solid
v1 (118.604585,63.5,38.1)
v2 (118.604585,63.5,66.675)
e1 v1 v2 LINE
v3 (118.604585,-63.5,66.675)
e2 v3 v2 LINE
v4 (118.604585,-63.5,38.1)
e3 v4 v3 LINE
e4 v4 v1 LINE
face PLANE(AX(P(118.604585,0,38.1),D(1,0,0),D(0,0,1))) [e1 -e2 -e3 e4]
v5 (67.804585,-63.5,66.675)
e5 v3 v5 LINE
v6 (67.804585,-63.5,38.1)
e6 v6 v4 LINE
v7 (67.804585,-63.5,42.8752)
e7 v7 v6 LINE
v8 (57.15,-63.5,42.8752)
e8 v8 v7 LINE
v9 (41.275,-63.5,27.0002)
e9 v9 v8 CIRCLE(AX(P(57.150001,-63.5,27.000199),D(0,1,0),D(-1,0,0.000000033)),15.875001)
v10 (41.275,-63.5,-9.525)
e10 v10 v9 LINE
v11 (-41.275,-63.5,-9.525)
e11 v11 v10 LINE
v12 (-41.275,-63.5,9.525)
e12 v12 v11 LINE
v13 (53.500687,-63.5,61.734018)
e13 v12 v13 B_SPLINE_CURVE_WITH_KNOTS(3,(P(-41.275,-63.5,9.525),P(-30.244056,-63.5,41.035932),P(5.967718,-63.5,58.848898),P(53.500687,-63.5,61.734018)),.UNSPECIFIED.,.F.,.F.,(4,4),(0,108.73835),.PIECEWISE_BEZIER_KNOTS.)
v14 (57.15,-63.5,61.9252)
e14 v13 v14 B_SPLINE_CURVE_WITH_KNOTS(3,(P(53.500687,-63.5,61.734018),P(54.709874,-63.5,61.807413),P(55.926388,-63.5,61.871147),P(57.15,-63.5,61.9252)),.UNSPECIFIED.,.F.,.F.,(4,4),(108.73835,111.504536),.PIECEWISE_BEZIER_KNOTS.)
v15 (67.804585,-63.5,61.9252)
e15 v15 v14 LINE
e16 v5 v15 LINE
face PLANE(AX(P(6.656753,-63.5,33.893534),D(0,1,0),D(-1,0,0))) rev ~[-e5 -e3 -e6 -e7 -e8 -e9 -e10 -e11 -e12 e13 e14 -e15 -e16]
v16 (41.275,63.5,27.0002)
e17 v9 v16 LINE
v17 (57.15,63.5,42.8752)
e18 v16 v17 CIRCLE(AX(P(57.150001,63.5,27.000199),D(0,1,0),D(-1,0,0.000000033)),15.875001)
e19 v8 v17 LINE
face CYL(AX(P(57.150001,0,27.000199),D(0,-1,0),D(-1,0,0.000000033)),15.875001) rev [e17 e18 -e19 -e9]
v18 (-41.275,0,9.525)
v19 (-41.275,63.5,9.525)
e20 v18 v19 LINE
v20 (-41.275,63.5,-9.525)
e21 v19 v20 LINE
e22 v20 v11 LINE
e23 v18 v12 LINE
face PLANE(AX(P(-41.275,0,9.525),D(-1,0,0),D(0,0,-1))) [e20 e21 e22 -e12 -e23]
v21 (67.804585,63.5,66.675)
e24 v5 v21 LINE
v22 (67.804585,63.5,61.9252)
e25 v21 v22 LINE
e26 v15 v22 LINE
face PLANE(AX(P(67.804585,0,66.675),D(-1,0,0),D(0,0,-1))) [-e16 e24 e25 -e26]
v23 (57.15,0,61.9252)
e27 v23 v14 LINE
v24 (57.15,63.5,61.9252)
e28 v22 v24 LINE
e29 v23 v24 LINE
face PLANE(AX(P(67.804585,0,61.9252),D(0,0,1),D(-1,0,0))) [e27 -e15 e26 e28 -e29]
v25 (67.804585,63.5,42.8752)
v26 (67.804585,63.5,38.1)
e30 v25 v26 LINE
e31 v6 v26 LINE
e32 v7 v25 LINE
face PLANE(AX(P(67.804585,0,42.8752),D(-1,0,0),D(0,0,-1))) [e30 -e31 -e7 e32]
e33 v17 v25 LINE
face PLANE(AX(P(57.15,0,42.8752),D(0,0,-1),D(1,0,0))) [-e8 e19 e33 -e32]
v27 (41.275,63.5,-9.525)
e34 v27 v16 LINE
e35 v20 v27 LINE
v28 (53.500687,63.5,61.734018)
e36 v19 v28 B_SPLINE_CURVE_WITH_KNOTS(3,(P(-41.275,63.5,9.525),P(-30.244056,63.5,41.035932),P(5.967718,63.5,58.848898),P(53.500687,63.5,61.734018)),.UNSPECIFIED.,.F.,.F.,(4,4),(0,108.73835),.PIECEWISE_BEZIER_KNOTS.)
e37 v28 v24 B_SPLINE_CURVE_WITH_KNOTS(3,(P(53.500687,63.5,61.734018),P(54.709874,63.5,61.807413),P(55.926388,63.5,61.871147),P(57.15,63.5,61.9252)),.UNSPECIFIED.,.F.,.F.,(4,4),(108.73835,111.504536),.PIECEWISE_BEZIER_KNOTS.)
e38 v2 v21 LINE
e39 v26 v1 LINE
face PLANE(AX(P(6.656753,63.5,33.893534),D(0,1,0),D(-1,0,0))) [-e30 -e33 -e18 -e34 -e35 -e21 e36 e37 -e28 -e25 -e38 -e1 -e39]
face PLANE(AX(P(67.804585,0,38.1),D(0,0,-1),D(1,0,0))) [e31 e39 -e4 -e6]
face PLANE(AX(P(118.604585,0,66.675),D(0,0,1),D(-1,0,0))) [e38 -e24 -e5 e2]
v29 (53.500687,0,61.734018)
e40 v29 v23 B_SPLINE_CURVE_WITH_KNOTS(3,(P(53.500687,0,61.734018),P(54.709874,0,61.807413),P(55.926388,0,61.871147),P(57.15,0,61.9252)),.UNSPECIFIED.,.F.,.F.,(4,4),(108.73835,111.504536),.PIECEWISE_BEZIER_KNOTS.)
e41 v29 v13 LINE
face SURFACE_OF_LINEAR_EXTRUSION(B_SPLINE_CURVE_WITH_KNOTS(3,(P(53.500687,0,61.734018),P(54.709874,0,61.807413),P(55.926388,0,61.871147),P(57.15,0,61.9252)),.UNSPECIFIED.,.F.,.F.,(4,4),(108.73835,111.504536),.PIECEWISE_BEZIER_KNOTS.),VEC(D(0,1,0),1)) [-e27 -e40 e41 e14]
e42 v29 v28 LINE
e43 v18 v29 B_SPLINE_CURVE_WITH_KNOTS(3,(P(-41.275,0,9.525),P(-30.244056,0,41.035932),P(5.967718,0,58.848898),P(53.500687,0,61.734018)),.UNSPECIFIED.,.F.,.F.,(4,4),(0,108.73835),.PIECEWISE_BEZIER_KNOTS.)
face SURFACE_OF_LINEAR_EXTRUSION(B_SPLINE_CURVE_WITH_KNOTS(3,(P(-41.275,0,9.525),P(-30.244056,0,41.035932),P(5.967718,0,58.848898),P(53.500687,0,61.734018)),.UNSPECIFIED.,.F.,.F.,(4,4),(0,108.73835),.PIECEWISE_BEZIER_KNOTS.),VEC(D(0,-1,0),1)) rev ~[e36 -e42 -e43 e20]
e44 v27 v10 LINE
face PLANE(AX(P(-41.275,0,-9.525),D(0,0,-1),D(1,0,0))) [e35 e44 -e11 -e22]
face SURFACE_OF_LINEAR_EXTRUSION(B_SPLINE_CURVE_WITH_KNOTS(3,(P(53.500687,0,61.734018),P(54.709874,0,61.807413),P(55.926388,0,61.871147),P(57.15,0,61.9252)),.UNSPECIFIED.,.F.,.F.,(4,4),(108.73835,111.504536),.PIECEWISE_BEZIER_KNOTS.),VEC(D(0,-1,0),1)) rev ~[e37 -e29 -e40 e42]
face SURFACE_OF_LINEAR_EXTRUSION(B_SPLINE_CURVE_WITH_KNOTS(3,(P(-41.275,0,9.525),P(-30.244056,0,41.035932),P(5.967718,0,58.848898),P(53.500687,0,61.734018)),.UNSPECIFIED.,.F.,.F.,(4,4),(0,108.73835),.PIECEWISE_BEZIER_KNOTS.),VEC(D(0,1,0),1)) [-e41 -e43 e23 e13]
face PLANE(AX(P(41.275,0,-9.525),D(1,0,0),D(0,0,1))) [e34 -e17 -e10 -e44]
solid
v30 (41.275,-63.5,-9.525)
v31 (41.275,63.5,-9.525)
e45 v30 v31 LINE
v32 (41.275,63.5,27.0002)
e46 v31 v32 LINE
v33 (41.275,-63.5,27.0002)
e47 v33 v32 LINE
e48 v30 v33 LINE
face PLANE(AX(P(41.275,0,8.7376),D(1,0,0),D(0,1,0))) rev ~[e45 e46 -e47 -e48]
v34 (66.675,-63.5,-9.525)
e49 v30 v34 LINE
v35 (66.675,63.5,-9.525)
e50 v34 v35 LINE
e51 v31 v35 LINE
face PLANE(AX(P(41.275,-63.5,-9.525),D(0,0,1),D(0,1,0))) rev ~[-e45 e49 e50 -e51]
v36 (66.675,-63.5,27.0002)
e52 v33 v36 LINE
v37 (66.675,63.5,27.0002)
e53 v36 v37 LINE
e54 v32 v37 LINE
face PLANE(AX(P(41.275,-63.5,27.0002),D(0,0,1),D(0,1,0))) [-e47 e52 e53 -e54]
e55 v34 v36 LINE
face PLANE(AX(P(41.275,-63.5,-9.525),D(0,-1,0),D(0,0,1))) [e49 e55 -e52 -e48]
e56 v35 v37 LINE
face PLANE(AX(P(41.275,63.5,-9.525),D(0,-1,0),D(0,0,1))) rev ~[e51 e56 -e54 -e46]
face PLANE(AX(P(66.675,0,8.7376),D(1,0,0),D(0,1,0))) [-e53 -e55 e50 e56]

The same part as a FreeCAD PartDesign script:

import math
import FreeCAD as App
import Part
import Sketcher
from FreeCAD import Vector
Q = App.Units.Quantity

doc = App.newDocument("Part")
body = doc.addObject("PartDesign::Body", "Body")

# Sketch on XZ plane
sketch1 = body.newObject("Sketcher::SketchObject", "Sketch")
sketch1.AttachmentSupport = (doc.getObject("XZ_Plane"), [""])
sketch1.MapMode = "FlatFace"
sketch1.addGeometry(Part.BSplineCurve([Vector(-41.275, 9.525, 0), Vector(-30.244056, 41.035932, 0), Vector(5.967718, 58.848898, 0), Vector(53.500687, 61.734018, 0)], [4, 4], [0, 108.73835], False, 3, [1, 1, 1, 1], False), False)
sketch1.addGeometry(Part.LineSegment(Vector(-41.275, 9.525, 0), Vector(-41.275, -9.525, 0)), False)
sketch1.addGeometry(Part.LineSegment(Vector(-41.275, -9.525, 0), Vector(41.275, -9.525, 0)), False)
sketch1.addGeometry(Part.LineSegment(Vector(41.275, -9.525, 0), Vector(41.275, 27.0002, 0)), False)
sketch1.addGeometry(Part.ArcOfCircle(Part.Circle(Vector(57.150001, 27.000199, 0), Vector(0, 0, 1), 15.875001), math.radians(90.000002), math.radians(179.999998)), False)
sketch1.addGeometry(Part.LineSegment(Vector(57.15, 42.8752, 0), Vector(67.804585, 42.8752, 0)), False)
sketch1.addGeometry(Part.LineSegment(Vector(67.804585, 42.8752, 0), Vector(67.804585, 38.1, 0)), False)
sketch1.addGeometry(Part.LineSegment(Vector(67.804585, 38.1, 0), Vector(118.604585, 38.1, 0)), False)
sketch1.addGeometry(Part.LineSegment(Vector(118.604585, 38.1, 0), Vector(118.604585, 66.675, 0)), False)
sketch1.addGeometry(Part.LineSegment(Vector(118.604585, 66.675, 0), Vector(67.804585, 66.675, 0)), False)
sketch1.addGeometry(Part.LineSegment(Vector(67.804585, 66.675, 0), Vector(67.804585, 61.9252, 0)), False)
sketch1.addGeometry(Part.LineSegment(Vector(67.804585, 61.9252, 0), Vector(57.15, 61.9252, 0)), False)
sketch1.addGeometry(Part.BSplineCurve([Vector(53.500687, 61.734018, 0), Vector(54.709874, 61.807413, 0), Vector(55.926388, 61.871147, 0), Vector(57.15, 61.9252, 0)], [4, 4], [108.73835, 111.504536], False, 3, [1, 1, 1, 1], False), False)
sketch1.addConstraint(Sketcher.Constraint("Block", 0))
sketch1.addConstraint(Sketcher.Constraint("Block", 12))
sketch1.addConstraint(Sketcher.Constraint("Coincident", 0, 1, 1, 1))
sketch1.addConstraint(Sketcher.Constraint("Coincident", 1, 2, 2, 1))
sketch1.addConstraint(Sketcher.Constraint("Coincident", 2, 2, 3, 1))
sketch1.addConstraint(Sketcher.Constraint("Tangent", 3, 2, 4, 2))
sketch1.addConstraint(Sketcher.Constraint("Tangent", 4, 1, 5, 1))
sketch1.addConstraint(Sketcher.Constraint("Coincident", 5, 2, 6, 1))
sketch1.addConstraint(Sketcher.Constraint("Coincident", 6, 2, 7, 1))
sketch1.addConstraint(Sketcher.Constraint("Coincident", 7, 2, 8, 1))
sketch1.addConstraint(Sketcher.Constraint("Coincident", 8, 2, 9, 1))
sketch1.addConstraint(Sketcher.Constraint("Coincident", 9, 2, 10, 1))
sketch1.addConstraint(Sketcher.Constraint("Coincident", 10, 2, 11, 1))
sketch1.addConstraint(Sketcher.Constraint("Coincident", 11, 2, 12, 2))
sketch1.addConstraint(Sketcher.Constraint("Vertical", 1))
sketch1.addConstraint(Sketcher.Constraint("Horizontal", 2))
sketch1.addConstraint(Sketcher.Constraint("Vertical", 3))
sketch1.addConstraint(Sketcher.Constraint("Horizontal", 5))
sketch1.addConstraint(Sketcher.Constraint("Vertical", 6))
sketch1.addConstraint(Sketcher.Constraint("Horizontal", 7))
sketch1.addConstraint(Sketcher.Constraint("Vertical", 8))
sketch1.addConstraint(Sketcher.Constraint("Horizontal", 9))
sketch1.addConstraint(Sketcher.Constraint("Vertical", 10))
sketch1.addConstraint(Sketcher.Constraint("Horizontal", 11))
sketch1.addConstraint(Sketcher.Constraint("Vertical", 6, 2, 9, 2))
sketch1.addConstraint(Sketcher.Constraint("Vertical", 4, 1, 11, 2))
sketch1.addConstraint(Sketcher.Constraint("DistanceX", 7, 1, 7, 2, Q("2 in")))
sketch1.addConstraint(Sketcher.Constraint("Radius", 4, Q("0.625 in")))
sketch1.addConstraint(Sketcher.Constraint("DistanceY", 1, 2, 1, 1, Q("0.75 in")))
sketch1.addConstraint(Sketcher.Constraint("DistanceY", -1, 1, 6, 2, Q("1.5 in")))
sketch1.addConstraint(Sketcher.Constraint("DistanceY", 3, 1, 3, 2, Q("1.438 in")))
sketch1.addConstraint(Sketcher.Constraint("DistanceY", 8, 1, 8, 2, Q("1.125 in")))
sketch1.addConstraint(Sketcher.Constraint("DistanceX", 5, 1, 5, 2, Q("10.654585 mm")))
pad1 = body.newObject("PartDesign::Pad", "Pad")
pad1.Profile = sketch1
pad1.Length = Q("5 in")
pad1.Midplane = True
body2 = doc.addObject("PartDesign::Body", "Body001")

# Sketch on YZ plane
sketch2 = body2.newObject("Sketcher::SketchObject", "Sketch001")
sketch2.AttachmentSupport = (doc.getObject("YZ_Plane001"), [""])
sketch2.MapMode = "FlatFace"
sketch2.AttachmentOffset = App.Placement(Vector(0, 0, 1.625 * 25.4), App.Rotation())
sketch2.addGeometry(Part.LineSegment(Vector(-63.5, 27.0002, 0), Vector(-63.5, -9.525, 0)), False)
sketch2.addGeometry(Part.LineSegment(Vector(-63.5, -9.525, 0), Vector(63.5, -9.525, 0)), False)
sketch2.addGeometry(Part.LineSegment(Vector(63.5, -9.525, 0), Vector(63.5, 27.0002, 0)), False)
sketch2.addGeometry(Part.LineSegment(Vector(63.5, 27.0002, 0), Vector(-63.5, 27.0002, 0)), False)
sketch2.addConstraint(Sketcher.Constraint("Coincident", 0, 2, 1, 1))
sketch2.addConstraint(Sketcher.Constraint("Coincident", 1, 2, 2, 1))
sketch2.addConstraint(Sketcher.Constraint("Coincident", 2, 2, 3, 1))
sketch2.addConstraint(Sketcher.Constraint("Coincident", 3, 2, 0, 1))
sketch2.addConstraint(Sketcher.Constraint("Vertical", 0))
sketch2.addConstraint(Sketcher.Constraint("Horizontal", 1))
sketch2.addConstraint(Sketcher.Constraint("Vertical", 2))
sketch2.addConstraint(Sketcher.Constraint("Horizontal", 3))
sketch2.addConstraint(Sketcher.Constraint("DistanceX", 1, 1, 1, 2, Q("5 in")))
sketch2.addConstraint(Sketcher.Constraint("DistanceX", 0, 2, -1, 1, Q("2.5 in")))
sketch2.addConstraint(Sketcher.Constraint("DistanceY", 0, 2, 0, 1, Q("1.438 in")))
sketch2.addConstraint(Sketcher.Constraint("DistanceY", 0, 2, -1, 1, Q("0.375 in")))
pad2 = body2.newObject("PartDesign::Pad", "Pad001")
pad2.Profile = sketch2
pad2.Length = Q("1 in")

doc.recompute()
